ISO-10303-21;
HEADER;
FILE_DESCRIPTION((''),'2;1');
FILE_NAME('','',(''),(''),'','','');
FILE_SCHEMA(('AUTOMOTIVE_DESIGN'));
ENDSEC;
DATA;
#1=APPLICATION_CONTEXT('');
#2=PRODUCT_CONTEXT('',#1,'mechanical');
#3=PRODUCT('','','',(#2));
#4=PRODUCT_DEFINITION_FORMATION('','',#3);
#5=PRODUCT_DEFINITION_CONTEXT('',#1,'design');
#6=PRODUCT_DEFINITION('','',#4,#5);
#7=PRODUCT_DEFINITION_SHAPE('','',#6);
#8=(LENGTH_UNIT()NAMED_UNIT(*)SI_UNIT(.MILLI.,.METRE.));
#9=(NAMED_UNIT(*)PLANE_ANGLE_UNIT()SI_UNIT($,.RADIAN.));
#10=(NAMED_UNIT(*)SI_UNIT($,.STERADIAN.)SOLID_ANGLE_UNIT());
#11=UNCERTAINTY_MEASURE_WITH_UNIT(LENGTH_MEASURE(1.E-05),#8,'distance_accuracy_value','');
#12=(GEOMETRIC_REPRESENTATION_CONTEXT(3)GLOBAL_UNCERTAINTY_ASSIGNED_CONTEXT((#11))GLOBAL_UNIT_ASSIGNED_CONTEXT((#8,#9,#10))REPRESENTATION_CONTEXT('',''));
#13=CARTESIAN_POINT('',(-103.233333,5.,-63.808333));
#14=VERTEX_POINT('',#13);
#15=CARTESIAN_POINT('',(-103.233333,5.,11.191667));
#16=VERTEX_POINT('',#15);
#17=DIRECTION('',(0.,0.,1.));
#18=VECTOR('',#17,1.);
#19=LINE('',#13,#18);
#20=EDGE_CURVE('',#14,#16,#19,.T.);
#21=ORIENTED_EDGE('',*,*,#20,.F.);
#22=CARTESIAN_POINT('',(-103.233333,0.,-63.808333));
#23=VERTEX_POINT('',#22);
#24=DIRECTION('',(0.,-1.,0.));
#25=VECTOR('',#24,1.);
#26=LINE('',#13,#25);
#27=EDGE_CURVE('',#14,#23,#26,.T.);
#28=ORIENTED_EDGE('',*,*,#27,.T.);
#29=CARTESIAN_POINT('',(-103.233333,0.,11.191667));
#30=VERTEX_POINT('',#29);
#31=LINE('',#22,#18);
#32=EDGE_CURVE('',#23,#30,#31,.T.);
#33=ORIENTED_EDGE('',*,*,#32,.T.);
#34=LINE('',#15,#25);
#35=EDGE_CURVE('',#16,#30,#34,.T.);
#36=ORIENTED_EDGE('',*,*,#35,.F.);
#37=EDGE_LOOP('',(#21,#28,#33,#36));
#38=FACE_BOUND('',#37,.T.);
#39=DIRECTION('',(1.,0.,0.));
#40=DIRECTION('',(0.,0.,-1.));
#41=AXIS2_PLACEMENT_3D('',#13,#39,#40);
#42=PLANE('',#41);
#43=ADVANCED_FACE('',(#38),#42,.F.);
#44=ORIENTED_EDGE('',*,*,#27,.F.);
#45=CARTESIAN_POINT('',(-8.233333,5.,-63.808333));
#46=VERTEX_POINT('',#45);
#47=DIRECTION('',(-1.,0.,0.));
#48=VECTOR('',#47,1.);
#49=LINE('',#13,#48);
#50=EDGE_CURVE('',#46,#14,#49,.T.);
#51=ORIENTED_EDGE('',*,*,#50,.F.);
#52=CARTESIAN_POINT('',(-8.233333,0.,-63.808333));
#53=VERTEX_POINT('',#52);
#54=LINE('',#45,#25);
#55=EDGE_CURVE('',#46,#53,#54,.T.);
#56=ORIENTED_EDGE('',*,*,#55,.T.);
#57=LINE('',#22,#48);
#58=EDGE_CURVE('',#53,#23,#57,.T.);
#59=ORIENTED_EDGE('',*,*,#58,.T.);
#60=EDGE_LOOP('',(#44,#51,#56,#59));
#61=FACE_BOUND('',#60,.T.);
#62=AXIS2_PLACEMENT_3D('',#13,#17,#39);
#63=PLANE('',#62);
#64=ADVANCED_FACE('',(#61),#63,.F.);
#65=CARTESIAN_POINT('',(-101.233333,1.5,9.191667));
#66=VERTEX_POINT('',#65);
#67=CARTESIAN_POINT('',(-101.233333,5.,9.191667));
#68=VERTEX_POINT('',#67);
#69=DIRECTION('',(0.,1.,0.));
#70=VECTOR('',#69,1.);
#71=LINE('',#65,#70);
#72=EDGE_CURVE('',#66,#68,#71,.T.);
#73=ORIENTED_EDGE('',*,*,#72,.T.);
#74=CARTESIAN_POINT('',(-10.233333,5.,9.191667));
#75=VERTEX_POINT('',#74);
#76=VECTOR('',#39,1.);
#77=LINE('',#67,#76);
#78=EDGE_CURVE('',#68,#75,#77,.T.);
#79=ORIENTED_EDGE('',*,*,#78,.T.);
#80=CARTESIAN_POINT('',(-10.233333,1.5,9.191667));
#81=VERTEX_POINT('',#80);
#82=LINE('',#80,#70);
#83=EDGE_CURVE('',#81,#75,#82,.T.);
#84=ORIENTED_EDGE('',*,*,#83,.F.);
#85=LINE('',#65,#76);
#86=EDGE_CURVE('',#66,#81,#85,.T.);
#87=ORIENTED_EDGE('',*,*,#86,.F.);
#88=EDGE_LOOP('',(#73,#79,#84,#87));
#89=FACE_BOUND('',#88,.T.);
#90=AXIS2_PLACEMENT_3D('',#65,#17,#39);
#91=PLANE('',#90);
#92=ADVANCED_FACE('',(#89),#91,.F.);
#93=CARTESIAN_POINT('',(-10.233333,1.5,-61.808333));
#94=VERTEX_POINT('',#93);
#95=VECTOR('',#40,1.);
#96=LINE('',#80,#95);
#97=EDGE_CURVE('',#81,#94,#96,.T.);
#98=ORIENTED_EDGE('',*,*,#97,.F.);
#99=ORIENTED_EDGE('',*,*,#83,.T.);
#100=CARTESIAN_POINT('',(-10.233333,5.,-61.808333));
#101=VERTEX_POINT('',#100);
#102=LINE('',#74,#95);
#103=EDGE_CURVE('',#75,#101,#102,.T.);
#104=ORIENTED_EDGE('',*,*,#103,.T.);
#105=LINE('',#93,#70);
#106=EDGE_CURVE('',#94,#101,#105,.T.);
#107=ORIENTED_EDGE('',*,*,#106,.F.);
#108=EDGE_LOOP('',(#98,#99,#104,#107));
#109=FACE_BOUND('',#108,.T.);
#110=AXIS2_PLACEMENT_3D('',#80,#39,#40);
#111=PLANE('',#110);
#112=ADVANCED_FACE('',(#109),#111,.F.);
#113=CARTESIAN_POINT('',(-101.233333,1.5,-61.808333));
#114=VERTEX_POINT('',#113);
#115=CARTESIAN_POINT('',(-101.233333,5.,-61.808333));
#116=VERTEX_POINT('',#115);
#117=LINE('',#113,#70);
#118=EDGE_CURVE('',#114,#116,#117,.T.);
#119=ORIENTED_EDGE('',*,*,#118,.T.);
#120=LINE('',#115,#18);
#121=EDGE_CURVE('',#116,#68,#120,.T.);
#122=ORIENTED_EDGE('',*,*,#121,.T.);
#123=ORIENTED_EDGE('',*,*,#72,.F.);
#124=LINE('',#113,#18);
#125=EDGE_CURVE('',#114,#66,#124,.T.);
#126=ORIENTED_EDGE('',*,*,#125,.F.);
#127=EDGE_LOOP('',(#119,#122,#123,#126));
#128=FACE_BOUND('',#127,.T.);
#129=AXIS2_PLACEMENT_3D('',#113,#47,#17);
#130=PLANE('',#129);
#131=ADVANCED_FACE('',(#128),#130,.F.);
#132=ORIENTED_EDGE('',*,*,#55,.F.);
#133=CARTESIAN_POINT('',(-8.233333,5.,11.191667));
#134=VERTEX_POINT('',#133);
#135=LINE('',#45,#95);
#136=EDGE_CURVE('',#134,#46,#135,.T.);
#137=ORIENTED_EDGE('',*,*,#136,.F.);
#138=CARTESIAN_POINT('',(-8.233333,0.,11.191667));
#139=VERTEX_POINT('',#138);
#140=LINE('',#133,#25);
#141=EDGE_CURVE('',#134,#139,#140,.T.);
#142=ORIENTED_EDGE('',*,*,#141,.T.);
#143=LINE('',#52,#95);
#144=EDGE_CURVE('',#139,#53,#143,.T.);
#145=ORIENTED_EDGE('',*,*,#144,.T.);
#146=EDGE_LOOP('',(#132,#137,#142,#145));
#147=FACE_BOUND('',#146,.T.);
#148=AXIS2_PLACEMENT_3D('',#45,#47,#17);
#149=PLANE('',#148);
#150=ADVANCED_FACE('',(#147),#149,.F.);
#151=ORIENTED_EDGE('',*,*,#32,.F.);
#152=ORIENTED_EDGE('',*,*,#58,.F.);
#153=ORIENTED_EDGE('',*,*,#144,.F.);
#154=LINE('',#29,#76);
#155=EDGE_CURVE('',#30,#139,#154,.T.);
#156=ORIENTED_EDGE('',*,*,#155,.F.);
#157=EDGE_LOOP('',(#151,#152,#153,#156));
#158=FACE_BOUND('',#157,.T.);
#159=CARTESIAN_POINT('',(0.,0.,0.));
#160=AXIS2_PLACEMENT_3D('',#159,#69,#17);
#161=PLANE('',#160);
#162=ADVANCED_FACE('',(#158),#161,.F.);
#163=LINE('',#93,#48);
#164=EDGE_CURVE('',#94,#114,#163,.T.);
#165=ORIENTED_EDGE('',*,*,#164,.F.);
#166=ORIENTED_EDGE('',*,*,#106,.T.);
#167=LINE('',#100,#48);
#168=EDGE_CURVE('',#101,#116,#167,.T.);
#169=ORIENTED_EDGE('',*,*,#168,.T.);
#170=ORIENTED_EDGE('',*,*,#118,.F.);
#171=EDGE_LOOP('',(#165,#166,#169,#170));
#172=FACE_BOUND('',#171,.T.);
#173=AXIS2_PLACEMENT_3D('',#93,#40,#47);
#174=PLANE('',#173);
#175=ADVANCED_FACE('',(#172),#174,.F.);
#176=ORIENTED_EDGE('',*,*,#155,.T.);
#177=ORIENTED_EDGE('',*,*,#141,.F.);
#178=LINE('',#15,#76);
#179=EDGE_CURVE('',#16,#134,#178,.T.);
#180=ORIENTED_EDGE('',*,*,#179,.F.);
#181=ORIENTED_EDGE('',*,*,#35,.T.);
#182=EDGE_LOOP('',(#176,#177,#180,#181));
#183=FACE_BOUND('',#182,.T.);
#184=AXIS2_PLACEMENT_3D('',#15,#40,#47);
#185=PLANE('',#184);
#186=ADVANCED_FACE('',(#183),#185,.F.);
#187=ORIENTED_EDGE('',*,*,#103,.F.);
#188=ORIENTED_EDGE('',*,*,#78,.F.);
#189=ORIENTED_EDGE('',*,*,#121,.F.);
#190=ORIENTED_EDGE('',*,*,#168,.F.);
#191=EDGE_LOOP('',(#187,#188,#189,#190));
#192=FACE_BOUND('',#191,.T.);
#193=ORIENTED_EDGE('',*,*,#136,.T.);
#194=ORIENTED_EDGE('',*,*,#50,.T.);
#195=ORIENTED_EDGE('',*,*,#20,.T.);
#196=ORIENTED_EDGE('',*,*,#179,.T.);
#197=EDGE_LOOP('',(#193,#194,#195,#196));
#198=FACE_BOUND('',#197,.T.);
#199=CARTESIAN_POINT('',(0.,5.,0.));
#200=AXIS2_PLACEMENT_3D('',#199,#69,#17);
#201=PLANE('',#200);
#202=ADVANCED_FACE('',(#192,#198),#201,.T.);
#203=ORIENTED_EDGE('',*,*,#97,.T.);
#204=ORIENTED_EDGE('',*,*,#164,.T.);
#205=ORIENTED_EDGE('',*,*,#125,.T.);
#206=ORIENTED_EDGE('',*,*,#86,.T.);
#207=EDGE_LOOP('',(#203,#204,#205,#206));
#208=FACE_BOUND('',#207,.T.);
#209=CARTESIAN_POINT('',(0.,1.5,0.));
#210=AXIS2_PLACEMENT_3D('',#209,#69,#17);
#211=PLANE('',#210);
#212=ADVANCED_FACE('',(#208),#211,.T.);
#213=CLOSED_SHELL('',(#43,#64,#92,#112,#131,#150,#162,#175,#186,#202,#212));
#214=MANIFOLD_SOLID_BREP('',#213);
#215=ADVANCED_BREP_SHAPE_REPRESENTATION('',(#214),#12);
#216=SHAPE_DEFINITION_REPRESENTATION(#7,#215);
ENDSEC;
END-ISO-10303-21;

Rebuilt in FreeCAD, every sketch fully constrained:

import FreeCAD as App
import Part
import Sketcher
Q = App.Units.Quantity


def add_polygon(sketch, points):
    """Adds a closed chain of lines whose ends are joined by coincident constraints."""
    first, n = sketch.GeometryCount, len(points)
    for a, b in zip(points, points[1:] + points[:1]):
        sketch.addGeometry(Part.LineSegment(App.Vector(*a, 0), App.Vector(*b, 0)), False)
    for i in range(n):
        sketch.addConstraint(Sketcher.Constraint("Coincident", first + i, 2, first + (i + 1) % n, 1))

doc = App.newDocument("Part")
body = doc.addObject("PartDesign::Body", "Body")

# Sketch on XZ plane
sketch1 = body.newObject("Sketcher::SketchObject", "Sketch")
sketch1.AttachmentSupport = (doc.getObject("XZ_Plane"), [""])
sketch1.MapMode = "FlatFace"
add_polygon(sketch1, [(-103, -64), (-103, 11), (-8, 11), (-8, -64)])  # lines 0-3
sketch1.addConstraint(Sketcher.Constraint("Vertical", 0))
sketch1.addConstraint(Sketcher.Constraint("Horizontal", 1))
sketch1.addConstraint(Sketcher.Constraint("Vertical", 2))
sketch1.addConstraint(Sketcher.Constraint("Horizontal", 3))
sketch1.addConstraint(Sketcher.Constraint("DistanceX", 1, 1, 1, 2, Q("95 mm")))
sketch1.addConstraint(Sketcher.Constraint("DistanceY", 0, 1, 0, 2, Q("75 mm")))
sketch1.addConstraint(Sketcher.Constraint("DistanceX", 0, 2, -1, 1, Q("103.233333 mm")))
sketch1.addConstraint(Sketcher.Constraint("DistanceY", -1, 1, 0, 2, Q("11.191667 mm")))
pad1 = body.newObject("PartDesign::Pad", "Pad")
pad1.Profile = sketch1
pad1.Length = 5
pad1.Reversed = True

# Sketch on XZ plane
sketch2 = body.newObject("Sketcher::SketchObject", "Sketch001")
sketch2.AttachmentSupport = (doc.getObject("XZ_Plane"), [""])
sketch2.MapMode = "FlatFace"
sketch2.AttachmentOffset = App.Placement(App.Vector(0, 0, -5), App.Rotation())
add_polygon(sketch2, [(-101, -62), (-101, 9), (-10, 9), (-10, -62)])  # lines 0-3
sketch2.addConstraint(Sketcher.Constraint("Vertical", 0))
sketch2.addConstraint(Sketcher.Constraint("Horizontal", 1))
sketch2.addConstraint(Sketcher.Constraint("Vertical", 2))
sketch2.addConstraint(Sketcher.Constraint("Horizontal", 3))
sketch2.addConstraint(Sketcher.Constraint("DistanceX", 1, 1, 1, 2, Q("91 mm")))
sketch2.addConstraint(Sketcher.Constraint("DistanceY", 0, 1, 0, 2, Q("71 mm")))
sketch2.addConstraint(Sketcher.Constraint("DistanceX", 0, 2, -1, 1, Q("101.233333 mm")))
sketch2.addConstraint(Sketcher.Constraint("DistanceY", -1, 1, 0, 2, Q("9.191667 mm")))
pocket1 = body.newObject("PartDesign::Pocket", "Pocket")
pocket1.Profile = sketch2
pocket1.Length = 3.5
pocket1.Reversed = True

doc.recompute()
